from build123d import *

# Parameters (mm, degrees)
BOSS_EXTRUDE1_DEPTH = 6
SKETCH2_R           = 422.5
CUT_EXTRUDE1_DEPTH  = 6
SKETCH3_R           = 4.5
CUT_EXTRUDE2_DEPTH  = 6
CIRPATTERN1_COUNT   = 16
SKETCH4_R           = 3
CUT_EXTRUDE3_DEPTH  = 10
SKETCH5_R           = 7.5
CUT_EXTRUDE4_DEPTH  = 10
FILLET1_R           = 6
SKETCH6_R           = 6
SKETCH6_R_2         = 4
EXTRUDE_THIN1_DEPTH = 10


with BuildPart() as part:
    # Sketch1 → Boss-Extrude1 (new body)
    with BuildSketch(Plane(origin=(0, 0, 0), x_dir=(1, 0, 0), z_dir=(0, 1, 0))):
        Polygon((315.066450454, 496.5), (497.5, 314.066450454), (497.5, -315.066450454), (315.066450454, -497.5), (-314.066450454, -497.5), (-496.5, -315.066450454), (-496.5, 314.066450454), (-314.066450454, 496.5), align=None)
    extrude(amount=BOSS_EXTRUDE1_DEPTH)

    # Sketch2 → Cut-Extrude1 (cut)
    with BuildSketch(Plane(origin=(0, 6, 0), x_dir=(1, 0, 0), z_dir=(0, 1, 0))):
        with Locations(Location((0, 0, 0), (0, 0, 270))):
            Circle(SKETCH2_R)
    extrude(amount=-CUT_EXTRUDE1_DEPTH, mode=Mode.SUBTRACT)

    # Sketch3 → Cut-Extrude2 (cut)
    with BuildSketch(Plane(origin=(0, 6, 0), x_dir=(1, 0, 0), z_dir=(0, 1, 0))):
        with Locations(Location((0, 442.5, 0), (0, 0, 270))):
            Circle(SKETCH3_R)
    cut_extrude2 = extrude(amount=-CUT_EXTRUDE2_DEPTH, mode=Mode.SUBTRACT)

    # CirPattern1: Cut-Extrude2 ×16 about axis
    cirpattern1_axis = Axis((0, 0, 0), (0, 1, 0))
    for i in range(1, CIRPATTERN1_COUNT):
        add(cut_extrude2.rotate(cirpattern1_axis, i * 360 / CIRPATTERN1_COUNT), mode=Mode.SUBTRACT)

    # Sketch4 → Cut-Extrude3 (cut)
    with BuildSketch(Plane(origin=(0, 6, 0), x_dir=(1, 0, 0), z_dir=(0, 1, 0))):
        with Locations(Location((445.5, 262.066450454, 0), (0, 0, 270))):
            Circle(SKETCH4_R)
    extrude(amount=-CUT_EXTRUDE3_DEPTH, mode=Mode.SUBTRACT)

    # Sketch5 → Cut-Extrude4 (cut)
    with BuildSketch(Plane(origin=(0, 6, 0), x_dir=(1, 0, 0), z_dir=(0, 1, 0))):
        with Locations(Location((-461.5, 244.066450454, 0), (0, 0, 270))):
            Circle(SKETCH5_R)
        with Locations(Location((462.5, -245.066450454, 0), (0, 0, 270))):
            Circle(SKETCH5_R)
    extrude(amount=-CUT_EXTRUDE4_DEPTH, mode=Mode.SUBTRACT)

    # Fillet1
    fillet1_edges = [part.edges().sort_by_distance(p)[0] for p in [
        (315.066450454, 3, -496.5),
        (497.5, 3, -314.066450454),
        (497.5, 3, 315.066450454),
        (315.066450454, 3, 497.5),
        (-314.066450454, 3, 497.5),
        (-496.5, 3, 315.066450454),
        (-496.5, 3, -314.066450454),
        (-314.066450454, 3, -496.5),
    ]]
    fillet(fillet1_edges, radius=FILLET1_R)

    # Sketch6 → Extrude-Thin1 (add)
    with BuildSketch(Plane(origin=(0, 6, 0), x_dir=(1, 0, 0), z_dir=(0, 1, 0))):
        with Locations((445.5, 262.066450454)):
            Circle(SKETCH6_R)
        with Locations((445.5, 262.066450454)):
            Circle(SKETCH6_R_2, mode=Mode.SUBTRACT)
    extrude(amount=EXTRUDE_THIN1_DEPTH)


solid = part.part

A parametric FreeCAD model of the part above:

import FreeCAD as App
import Part
import Sketcher


def edges_at(feature, points):
    """Names of the edges that pass closest to the given points."""
    edges = feature.Shape.Edges
    near = lambda p: min(range(len(edges)), key=lambda i: edges[i].distToShape(Part.Vertex(*p))[0])
    return sorted({f"Edge{near(p) + 1}" for p in points})

doc = App.newDocument("Part")
body = doc.addObject("PartDesign::Body", "Body")

sketch1 = doc.addObject("Sketcher::SketchObject", "Sketch")
body.addObject(sketch1)
sketch1.AttachmentSupport = (doc.XZ_Plane, [""])
sketch1.MapMode = "FlatFace"
sketch1.addGeometry(Part.LineSegment(App.Vector(498, -314, 0), App.Vector(315, -496, 0)), False)
sketch1.addGeometry(Part.LineSegment(App.Vector(315, -496, 0), App.Vector(-314, -496, 0)), False)
sketch1.addGeometry(Part.LineSegment(App.Vector(-314, -496, 0), App.Vector(-496, -314, 0)), False)
sketch1.addGeometry(Part.LineSegment(App.Vector(-496, -314, 0), App.Vector(-496, 315, 0)), False)
sketch1.addGeometry(Part.LineSegment(App.Vector(-496, 315, 0), App.Vector(-314, 498, 0)), False)
sketch1.addGeometry(Part.LineSegment(App.Vector(-314, 498, 0), App.Vector(315, 498, 0)), False)
sketch1.addGeometry(Part.LineSegment(App.Vector(315, 498, 0), App.Vector(498, 315, 0)), False)
sketch1.addGeometry(Part.LineSegment(App.Vector(498, 315, 0), App.Vector(498, -314, 0)), False)
sketch1.addConstraint(Sketcher.Constraint("Coincident", 0, 2, 1, 1))
sketch1.addConstraint(Sketcher.Constraint("Coincident", 1, 2, 2, 1))
sketch1.addConstraint(Sketcher.Constraint("Coincident", 2, 2, 3, 1))
sketch1.addConstraint(Sketcher.Constraint("Coincident", 3, 2, 4, 1))
sketch1.addConstraint(Sketcher.Constraint("Coincident", 4, 2, 5, 1))
sketch1.addConstraint(Sketcher.Constraint("Coincident", 5, 2, 6, 1))
sketch1.addConstraint(Sketcher.Constraint("Coincident", 6, 2, 7, 1))
sketch1.addConstraint(Sketcher.Constraint("Coincident", 7, 2, 0, 1))
sketch1.addConstraint(Sketcher.Constraint("Horizontal", 1))
sketch1.addConstraint(Sketcher.Constraint("Vertical", 3))
sketch1.addConstraint(Sketcher.Constraint("Horizontal", 5))
sketch1.addConstraint(Sketcher.Constraint("Vertical", 7))
sketch1.addConstraint(Sketcher.Constraint("Perpendicular", 0, 2))
sketch1.addConstraint(Sketcher.Constraint("Perpendicular", 2, 4))
sketch1.addConstraint(Sketcher.Constraint("Perpendicular", 4, 6))
sketch1.addConstraint(Sketcher.Constraint("Horizontal", 3, 2, 6, 2))
sketch1.addConstraint(Sketcher.Constraint("Horizontal", 2, 2, 7, 2))
sketch1.addConstraint(Sketcher.Constraint("Vertical", 1, 2, 4, 2))
sketch1.addConstraint(Sketcher.Constraint("Vertical", 0, 2, 5, 2))
sketch1.addConstraint(Sketcher.Constraint("Equal", 5, 3))
sketch1.addConstraint(Sketcher.Constraint("Distance", 0, 258.0))
sketch1.addConstraint(Sketcher.Constraint("DistanceY", 1, 2, 4, 2, 994.0))
sketch1.addConstraint(Sketcher.Constraint("DistanceY", 0, 2, -1, 1, 496.5))
sketch1.addConstraint(Sketcher.Constraint("DistanceX", 2, 2, -1, 1, 496.5))
pad1 = doc.addObject("PartDesign::Pad", "Pad")
body.addObject(pad1)
pad1.Profile = sketch1
pad1.Length = 6
pad1.Reversed = True

sketch2 = doc.addObject("Sketcher::SketchObject", "Sketch001")
body.addObject(sketch2)
sketch2.AttachmentSupport = (doc.XZ_Plane, [""])
sketch2.MapMode = "FlatFace"
sketch2.AttachmentOffset = App.Placement(App.Vector(0, 0, -6), App.Rotation())
sketch2.addGeometry(Part.Circle(App.Vector(0, 0, 0), App.Vector(0, 0, 1), 422), False)
sketch2.addConstraint(Sketcher.Constraint("Coincident", 0, 3, -1, 1))
sketch2.addConstraint(Sketcher.Constraint("Diameter", 0, 845.0))
pocket1 = doc.addObject("PartDesign::Pocket", "Pocket")
body.addObject(pocket1)
pocket1.Profile = sketch2
pocket1.Length = 6
pocket1.Reversed = True

sketch3 = doc.addObject("Sketcher::SketchObject", "Sketch002")
body.addObject(sketch3)
sketch3.AttachmentSupport = (doc.XZ_Plane, [""])
sketch3.MapMode = "FlatFace"
sketch3.AttachmentOffset = App.Placement(App.Vector(0, 0, -6), App.Rotation())
sketch3.addGeometry(Part.Circle(App.Vector(0, -442.5, 0), App.Vector(0, 0, 1), 4.5), False)
sketch3.addConstraint(Sketcher.Constraint("PointOnObject", 0, 3, -2))
sketch3.addConstraint(Sketcher.Constraint("Diameter", 0, 9.0))
sketch3.addConstraint(Sketcher.Constraint("DistanceY", 0, 3, -1, 1, 442.5))
pocket2 = doc.addObject("PartDesign::Pocket", "Pocket001")
body.addObject(pocket2)
pocket2.Profile = sketch3
pocket2.Length = 6
pocket2.Reversed = True
doc.recompute()

polarpattern = doc.addObject("PartDesign::PolarPattern", "PolarPattern")
body.addObject(polarpattern)
polarpattern.Originals = [pocket2]
polarpattern.Axis = (doc.Y_Axis, [""])
polarpattern.Angle = 360
polarpattern.Occurrences = 16
body.Tip = polarpattern

sketch4 = doc.addObject("Sketcher::SketchObject", "Sketch003")
body.addObject(sketch4)
sketch4.AttachmentSupport = (doc.XZ_Plane, [""])
sketch4.MapMode = "FlatFace"
sketch4.AttachmentOffset = App.Placement(App.Vector(0, 0, -6), App.Rotation())
sketch4.addGeometry(Part.Circle(App.Vector(445.5, -262.1, 0), App.Vector(0, 0, 1), 3), False)
sketch4.addConstraint(Sketcher.Constraint("Diameter", 0, 6.0))
sketch4.addConstraint(Sketcher.Constraint("DistanceX", -1, 1, 0, 3, 445.5))
sketch4.addConstraint(Sketcher.Constraint("DistanceY", 0, 3, -1, 1, 262.06645))
pocket3 = doc.addObject("PartDesign::Pocket", "Pocket002")
body.addObject(pocket3)
pocket3.Profile = sketch4
pocket3.Length = 10
pocket3.Reversed = True

sketch5 = doc.addObject("Sketcher::SketchObject", "Sketch004")
body.addObject(sketch5)
sketch5.AttachmentSupport = (doc.XZ_Plane, [""])
sketch5.MapMode = "FlatFace"
sketch5.AttachmentOffset = App.Placement(App.Vector(0, 0, -6), App.Rotation())
sketch5.addGeometry(Part.Circle(App.Vector(-462, -244, 0), App.Vector(0, 0, 1), 8), False)
sketch5.addGeometry(Part.Circle(App.Vector(462, 245, 0), App.Vector(0, 0, 1), 8), False)
sketch5.addConstraint(Sketcher.Constraint("Equal", 0, 1))
sketch5.addConstraint(Sketcher.Constraint("Diameter", 0, 15.0))
sketch5.addConstraint(Sketcher.Constraint("DistanceX", 0, 3, 1, 3, 924.0))
sketch5.addConstraint(Sketcher.Constraint("DistanceX", 0, 3, -1, 1, 461.5))
sketch5.addConstraint(Sketcher.Constraint("DistanceY", 0, 3, 1, 3, 489.132901))
sketch5.addConstraint(Sketcher.Constraint("DistanceY", 0, 3, -1, 1, 244.06645))
pocket4 = doc.addObject("PartDesign::Pocket", "Pocket003")
body.addObject(pocket4)
pocket4.Profile = sketch5
pocket4.Length = 10
pocket4.Reversed = True
doc.recompute()

fillet = doc.addObject("PartDesign::Fillet", "Fillet")
body.addObject(fillet)
fillet.Base = (pocket4, edges_at(pocket4, [
    (315.066, 3, -496.5),
    (497.5, 3, -314.066),
    (497.5, 3, 315.066),
    (315.066, 3, 497.5),
    (-314.066, 3, 497.5),
    (-496.5, 3, 315.066),
    (-496.5, 3, -314.066),
    (-314.066, 3, -496.5),
]))
fillet.Radius = 6

sketch6 = doc.addObject("Sketcher::SketchObject", "Sketch005")
body.addObject(sketch6)
sketch6.AttachmentSupport = (doc.XZ_Plane, [""])
sketch6.MapMode = "FlatFace"
sketch6.AttachmentOffset = App.Placement(App.Vector(0, 0, -6), App.Rotation())
sketch6.addGeometry(Part.Circle(App.Vector(445.5, -262.1, 0), App.Vector(0, 0, 1), 6), False)
sketch6.addGeometry(Part.Circle(App.Vector(445.5, -262.1, 0), App.Vector(0, 0, 1), 4), False)
sketch6.addConstraint(Sketcher.Constraint("Coincident", 1, 3, 0, 3))
sketch6.addConstraint(Sketcher.Constraint("Diameter", 0, 12.0))
sketch6.addConstraint(Sketcher.Constraint("Diameter", 1, 8.0))
sketch6.addConstraint(Sketcher.Constraint("DistanceX", -1, 1, 0, 3, 445.5))
sketch6.addConstraint(Sketcher.Constraint("DistanceY", 0, 3, -1, 1, 262.06645))
pad2 = doc.addObject("PartDesign::Pad", "Pad001")
body.addObject(pad2)
pad2.Profile = sketch6
pad2.Length = 10
pad2.Reversed = True

doc.recompute()
